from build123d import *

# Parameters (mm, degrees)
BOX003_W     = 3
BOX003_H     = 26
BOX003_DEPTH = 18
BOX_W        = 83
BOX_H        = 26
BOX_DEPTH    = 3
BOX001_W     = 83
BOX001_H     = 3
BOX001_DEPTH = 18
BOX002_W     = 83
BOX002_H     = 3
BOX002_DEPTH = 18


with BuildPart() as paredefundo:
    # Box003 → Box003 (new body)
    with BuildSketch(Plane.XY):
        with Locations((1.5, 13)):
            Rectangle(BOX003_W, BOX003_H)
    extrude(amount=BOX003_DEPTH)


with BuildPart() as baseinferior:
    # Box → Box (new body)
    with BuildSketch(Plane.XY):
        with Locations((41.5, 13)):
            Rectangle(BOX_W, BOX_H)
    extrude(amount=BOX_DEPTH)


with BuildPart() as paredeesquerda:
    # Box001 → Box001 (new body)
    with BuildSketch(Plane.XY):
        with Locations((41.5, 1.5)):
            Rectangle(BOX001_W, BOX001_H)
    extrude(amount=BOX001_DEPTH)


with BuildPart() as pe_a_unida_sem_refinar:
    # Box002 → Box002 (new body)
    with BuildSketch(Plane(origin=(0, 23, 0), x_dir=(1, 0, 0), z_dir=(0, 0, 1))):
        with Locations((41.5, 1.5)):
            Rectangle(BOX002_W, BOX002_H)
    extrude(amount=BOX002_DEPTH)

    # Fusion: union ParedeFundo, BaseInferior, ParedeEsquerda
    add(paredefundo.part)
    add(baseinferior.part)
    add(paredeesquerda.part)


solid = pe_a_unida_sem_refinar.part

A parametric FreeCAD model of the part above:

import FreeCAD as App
import Part
import Sketcher

V = App.Vector
Q = App.Units.Quantity


def add_polygon(sketch, points):
    """Adds a closed chain of lines whose ends are joined by coincident constraints."""
    first, n = sketch.GeometryCount, len(points)
    for a, b in zip(points, points[1:] + points[:1]):
        sketch.addGeometry(Part.LineSegment(App.Vector(*a, 0), App.Vector(*b, 0)), False)
    for i in range(n):
        sketch.addConstraint(Sketcher.Constraint("Coincident", first + i, 2, first + (i + 1) % n, 1))

doc = App.newDocument("Part")
body = doc.addObject("PartDesign::Body", "Body")

# Sketch on XY plane
sketch1 = doc.addObject("Sketcher::SketchObject", "Sketch")
body.addObject(sketch1)
sketch1.AttachmentSupport = (doc.XY_Plane, [""])
sketch1.MapMode = "FlatFace"
add_polygon(sketch1, [(0, 26), (0, 0), (3, 0), (3, 26)])  # lines 0-3
sketch1.addConstraint(Sketcher.Constraint("Vertical", 0))
sketch1.addConstraint(Sketcher.Constraint("Horizontal", 1))
sketch1.addConstraint(Sketcher.Constraint("Vertical", 2))
sketch1.addConstraint(Sketcher.Constraint("Horizontal", 3))
sketch1.addConstraint(Sketcher.Constraint("Coincident", 0, 2, -1, 1))
sketch1.addConstraint(Sketcher.Constraint("DistanceX", 1, 1, 1, 2, Q("3 mm")))
sketch1.addConstraint(Sketcher.Constraint("DistanceY", 0, 2, 0, 1, Q("26 mm")))
pad1 = doc.addObject("PartDesign::Pad", "Pad")
body.addObject(pad1)
pad1.Profile = sketch1
pad1.Length = 18
body2 = doc.addObject("PartDesign::Body", "Body001")

# Sketch on XY plane
sketch2 = doc.addObject("Sketcher::SketchObject", "Sketch001")
body2.addObject(sketch2)
sketch2.AttachmentSupport = (doc.getObject("XY_Plane001"), [""])
sketch2.MapMode = "FlatFace"
add_polygon(sketch2, [(0, 26), (0, 0), (83, 0), (83, 26)])  # lines 0-3
sketch2.addConstraint(Sketcher.Constraint("Vertical", 0))
sketch2.addConstraint(Sketcher.Constraint("Horizontal", 1))
sketch2.addConstraint(Sketcher.Constraint("Vertical", 2))
sketch2.addConstraint(Sketcher.Constraint("Horizontal", 3))
sketch2.addConstraint(Sketcher.Constraint("Coincident", 0, 2, -1, 1))
sketch2.addConstraint(Sketcher.Constraint("DistanceX", 1, 1, 1, 2, Q("83 mm")))
sketch2.addConstraint(Sketcher.Constraint("DistanceY", 0, 2, 0, 1, Q("26 mm")))
pad2 = doc.addObject("PartDesign::Pad", "Pad001")
body2.addObject(pad2)
pad2.Profile = sketch2
pad2.Length = 3
body3 = doc.addObject("PartDesign::Body", "Body002")

# Sketch on XY plane
sketch3 = doc.addObject("Sketcher::SketchObject", "Sketch002")
body3.addObject(sketch3)
sketch3.AttachmentSupport = (doc.getObject("XY_Plane002"), [""])
sketch3.MapMode = "FlatFace"
add_polygon(sketch3, [(0, 3), (0, 0), (83, 0), (83, 3)])  # lines 0-3
sketch3.addConstraint(Sketcher.Constraint("Vertical", 0))
sketch3.addConstraint(Sketcher.Constraint("Horizontal", 1))
sketch3.addConstraint(Sketcher.Constraint("Vertical", 2))
sketch3.addConstraint(Sketcher.Constraint("Horizontal", 3))
sketch3.addConstraint(Sketcher.Constraint("Coincident", 0, 2, -1, 1))
sketch3.addConstraint(Sketcher.Constraint("DistanceX", 1, 1, 1, 2, Q("83 mm")))
sketch3.addConstraint(Sketcher.Constraint("DistanceY", 0, 2, 0, 1, Q("3 mm")))
pad3 = doc.addObject("PartDesign::Pad", "Pad002")
body3.addObject(pad3)
pad3.Profile = sketch3
pad3.Length = 18
body4 = doc.addObject("PartDesign::Body", "Body003")

# Sketch on XY plane
sketch4 = doc.addObject("Sketcher::SketchObject", "Sketch003")
body4.addObject(sketch4)
sketch4.AttachmentSupport = (doc.getObject("XY_Plane003"), [""])
sketch4.MapMode = "FlatFace"
add_polygon(sketch4, [(0, 26), (0, 23), (83, 23), (83, 26)])  # lines 0-3
sketch4.addConstraint(Sketcher.Constraint("Vertical", 0))
sketch4.addConstraint(Sketcher.Constraint("Horizontal", 1))
sketch4.addConstraint(Sketcher.Constraint("Vertical", 2))
sketch4.addConstraint(Sketcher.Constraint("Horizontal", 3))
sketch4.addConstraint(Sketcher.Constraint("PointOnObject", 0, 2, -2))
sketch4.addConstraint(Sketcher.Constraint("DistanceX", 1, 1, 1, 2, Q("83 mm")))
sketch4.addConstraint(Sketcher.Constraint("DistanceY", 0, 2, 0, 1, Q("3 mm")))
sketch4.addConstraint(Sketcher.Constraint("DistanceY", -1, 1, 0, 2, Q("23 mm")))
pad4 = doc.addObject("PartDesign::Pad", "Pad003")
body4.addObject(pad4)
pad4.Profile = sketch4
pad4.Length = 18
doc.recompute()

boolean = doc.addObject("PartDesign::Boolean", "Boolean")
body4.addObject(boolean)
boolean.Type = "Fuse"
boolean.addObjects([body])
doc.recompute()

boolean2 = doc.addObject("PartDesign::Boolean", "Boolean001")
body4.addObject(boolean2)
boolean2.Type = "Fuse"
boolean2.addObjects([body2])
doc.recompute()

boolean3 = doc.addObject("PartDesign::Boolean", "Boolean002")
body4.addObject(boolean3)
boolean3.Type = "Fuse"
boolean3.addObjects([body3])

doc.recompute()
